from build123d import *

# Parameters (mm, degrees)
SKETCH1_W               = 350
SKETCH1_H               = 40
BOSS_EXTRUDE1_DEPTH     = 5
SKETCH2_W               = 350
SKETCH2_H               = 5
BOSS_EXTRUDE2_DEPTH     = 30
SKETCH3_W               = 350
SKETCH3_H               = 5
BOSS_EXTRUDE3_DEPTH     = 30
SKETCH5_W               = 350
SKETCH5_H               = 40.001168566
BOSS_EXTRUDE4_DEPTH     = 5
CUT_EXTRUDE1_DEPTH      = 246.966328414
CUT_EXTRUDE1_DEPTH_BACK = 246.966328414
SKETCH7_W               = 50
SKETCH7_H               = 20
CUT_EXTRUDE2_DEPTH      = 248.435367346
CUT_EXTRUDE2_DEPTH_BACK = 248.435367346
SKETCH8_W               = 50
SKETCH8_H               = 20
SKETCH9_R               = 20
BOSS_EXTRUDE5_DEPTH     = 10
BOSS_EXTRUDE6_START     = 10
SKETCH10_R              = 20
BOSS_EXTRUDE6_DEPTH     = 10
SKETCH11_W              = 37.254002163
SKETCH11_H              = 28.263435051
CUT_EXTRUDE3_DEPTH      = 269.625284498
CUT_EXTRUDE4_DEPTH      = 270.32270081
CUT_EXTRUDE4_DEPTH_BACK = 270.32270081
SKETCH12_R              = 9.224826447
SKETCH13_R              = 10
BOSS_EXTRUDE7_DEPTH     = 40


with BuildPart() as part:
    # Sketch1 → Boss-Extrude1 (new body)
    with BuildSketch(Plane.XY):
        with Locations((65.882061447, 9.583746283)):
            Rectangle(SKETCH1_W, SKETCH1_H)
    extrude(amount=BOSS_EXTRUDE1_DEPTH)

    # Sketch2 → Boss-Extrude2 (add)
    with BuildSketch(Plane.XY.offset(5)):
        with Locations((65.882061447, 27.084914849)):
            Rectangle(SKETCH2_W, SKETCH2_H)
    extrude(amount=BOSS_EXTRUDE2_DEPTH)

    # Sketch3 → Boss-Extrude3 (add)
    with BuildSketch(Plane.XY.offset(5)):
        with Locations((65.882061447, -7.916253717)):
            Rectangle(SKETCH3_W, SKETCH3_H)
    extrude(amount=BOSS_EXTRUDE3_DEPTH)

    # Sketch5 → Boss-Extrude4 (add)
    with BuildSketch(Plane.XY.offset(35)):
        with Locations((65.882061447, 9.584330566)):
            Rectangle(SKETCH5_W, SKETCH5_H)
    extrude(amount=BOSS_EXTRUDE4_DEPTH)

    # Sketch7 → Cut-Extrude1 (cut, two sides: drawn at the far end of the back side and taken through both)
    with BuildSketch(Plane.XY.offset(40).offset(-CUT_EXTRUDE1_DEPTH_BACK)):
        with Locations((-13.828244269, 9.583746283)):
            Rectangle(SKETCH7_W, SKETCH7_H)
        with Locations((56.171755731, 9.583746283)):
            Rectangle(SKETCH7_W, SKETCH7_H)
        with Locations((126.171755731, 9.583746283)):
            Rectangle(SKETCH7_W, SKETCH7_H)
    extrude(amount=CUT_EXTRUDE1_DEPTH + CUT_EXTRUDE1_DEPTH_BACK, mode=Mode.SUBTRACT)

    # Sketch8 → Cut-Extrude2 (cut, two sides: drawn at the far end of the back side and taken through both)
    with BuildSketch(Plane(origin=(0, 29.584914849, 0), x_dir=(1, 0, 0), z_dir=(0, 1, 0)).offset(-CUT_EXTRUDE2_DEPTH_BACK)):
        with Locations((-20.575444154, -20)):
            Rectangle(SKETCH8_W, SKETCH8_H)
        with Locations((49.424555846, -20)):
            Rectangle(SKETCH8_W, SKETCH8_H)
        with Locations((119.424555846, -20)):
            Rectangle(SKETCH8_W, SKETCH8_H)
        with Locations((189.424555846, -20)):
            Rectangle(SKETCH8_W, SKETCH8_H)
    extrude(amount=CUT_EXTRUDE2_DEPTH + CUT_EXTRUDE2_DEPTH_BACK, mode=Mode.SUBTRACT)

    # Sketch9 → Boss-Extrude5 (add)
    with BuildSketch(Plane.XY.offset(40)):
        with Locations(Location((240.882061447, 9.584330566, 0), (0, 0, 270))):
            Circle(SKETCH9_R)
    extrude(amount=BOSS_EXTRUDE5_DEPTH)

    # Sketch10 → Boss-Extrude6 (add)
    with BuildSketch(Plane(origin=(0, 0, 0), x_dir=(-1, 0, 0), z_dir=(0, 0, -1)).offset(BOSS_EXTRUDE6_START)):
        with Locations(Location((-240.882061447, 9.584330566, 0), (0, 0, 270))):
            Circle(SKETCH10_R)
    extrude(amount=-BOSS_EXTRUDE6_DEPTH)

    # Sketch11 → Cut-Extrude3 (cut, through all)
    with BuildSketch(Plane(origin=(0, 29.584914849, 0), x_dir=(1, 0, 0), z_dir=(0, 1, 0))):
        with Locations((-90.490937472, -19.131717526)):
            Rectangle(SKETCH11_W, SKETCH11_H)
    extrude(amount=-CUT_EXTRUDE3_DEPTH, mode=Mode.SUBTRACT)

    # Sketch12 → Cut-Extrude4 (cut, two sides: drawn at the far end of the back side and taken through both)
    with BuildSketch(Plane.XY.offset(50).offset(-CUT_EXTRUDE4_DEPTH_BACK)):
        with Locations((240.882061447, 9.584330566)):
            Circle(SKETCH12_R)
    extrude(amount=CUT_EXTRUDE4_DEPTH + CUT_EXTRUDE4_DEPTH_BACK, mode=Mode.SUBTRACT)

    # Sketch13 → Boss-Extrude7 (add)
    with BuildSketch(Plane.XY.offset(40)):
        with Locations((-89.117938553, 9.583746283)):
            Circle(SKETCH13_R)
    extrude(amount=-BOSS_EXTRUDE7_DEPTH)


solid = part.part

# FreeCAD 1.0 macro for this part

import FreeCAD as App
import Part
import Sketcher

V = App.Vector

doc = App.newDocument("Part")
params = doc.addObject("Spreadsheet::Sheet", "Params")
for row, (alias, value) in enumerate([
    ("sketch1_width", "350 mm"),
    ("sketch1_height", "40 mm"),
    ("pad1_length", "5 mm"),
    ("sketch2_width", "350 mm"),
    ("sketch2_height", "5 mm"),
    ("pad2_length", "30 mm"),
    ("sketch3_width", "350 mm"),
    ("sketch3_height", "5 mm"),
    ("pad3_length", "30 mm"),
    ("sketch4_width", "350 mm"),
    ("pad4_length", "5 mm"),
    ("sketch5_width", "50 mm"),
    ("sketch5_height", "20 mm"),
    ("sketch6_width", "50 mm"),
    ("sketch6_height", "20 mm"),
    ("sketch7_diameter", "40 mm"),
    ("pad5_length", "10 mm"),
    ("sketch8_diameter", "40 mm"),
    ("pad6_length", "10 mm"),
    ("sketch11_diameter", "20 mm"),
    ("pad7_length", "40 mm"),
], start=1):
    params.set(f"A{row}", alias)
    params.set(f"B{row}", "=" + value)
    params.setAlias(f"B{row}", alias)

body = doc.addObject("PartDesign::Body", "Body")

sketch1 = body.newObject("Sketcher::SketchObject", "Sketch")
sketch1.AttachmentSupport = (doc.getObject("XY_Plane"), [""])
sketch1.MapMode = "FlatFace"
sketch1.addGeometry([
    Part.LineSegment(V(-109, 30, 0), V(-109, -10, 0)),
    Part.LineSegment(V(-109, -10, 0), V(241, -10, 0)),
    Part.LineSegment(V(241, -10, 0), V(241, 30, 0)),
    Part.LineSegment(V(241, 30, 0), V(-109, 30, 0)),
], False)
sketch1.addConstraint([
    Sketcher.Constraint("Coincident", 0, 2, 1, 1),
    Sketcher.Constraint("Coincident", 1, 2, 2, 1),
    Sketcher.Constraint("Coincident", 2, 2, 3, 1),
    Sketcher.Constraint("Coincident", 3, 2, 0, 1),
    Sketcher.Constraint("Vertical", 0),
    Sketcher.Constraint("Horizontal", 1),
    Sketcher.Constraint("Vertical", 2),
    Sketcher.Constraint("Horizontal", 3),
    Sketcher.Constraint("DistanceX", 1, 1, 1, 2, 350.0),
    Sketcher.Constraint("DistanceY", 0, 2, 0, 1, 40.0),
    Sketcher.Constraint("DistanceX", 0, 2, -1, 1, 109.117939),
    Sketcher.Constraint("DistanceY", 0, 2, -1, 1, 10.416254),
])
sketch1.setExpression("Constraints[8]", "Params.sketch1_width")
sketch1.setExpression("Constraints[9]", "Params.sketch1_height")
pad1 = body.newObject("PartDesign::Pad", "Pad")
pad1.Profile = sketch1
pad1.setExpression("Length", "Params.pad1_length")

sketch2 = body.newObject("Sketcher::SketchObject", "Sketch001")
sketch2.AttachmentSupport = (doc.getObject("XY_Plane"), [""])
sketch2.MapMode = "FlatFace"
sketch2.AttachmentOffset = App.Placement(V(0, 0, 5), App.Rotation())
sketch2.addGeometry([
    Part.LineSegment(V(-109, 30, 0), V(-109, 25, 0)),
    Part.LineSegment(V(-109, 25, 0), V(241, 25, 0)),
    Part.LineSegment(V(241, 25, 0), V(241, 30, 0)),
    Part.LineSegment(V(241, 30, 0), V(-109, 30, 0)),
], False)
sketch2.addConstraint([
    Sketcher.Constraint("Coincident", 0, 2, 1, 1),
    Sketcher.Constraint("Coincident", 1, 2, 2, 1),
    Sketcher.Constraint("Coincident", 2, 2, 3, 1),
    Sketcher.Constraint("Coincident", 3, 2, 0, 1),
    Sketcher.Constraint("Vertical", 0),
    Sketcher.Constraint("Horizontal", 1),
    Sketcher.Constraint("Vertical", 2),
    Sketcher.Constraint("Horizontal", 3),
    Sketcher.Constraint("DistanceX", 1, 1, 1, 2, 350.0),
    Sketcher.Constraint("DistanceY", 0, 2, 0, 1, 5.0),
    Sketcher.Constraint("DistanceX", 0, 2, -1, 1, 109.117939),
    Sketcher.Constraint("DistanceY", -1, 1, 0, 2, 24.584915),
])
sketch2.setExpression("Constraints[8]", "Params.sketch2_width")
sketch2.setExpression("Constraints[9]", "Params.sketch2_height")
pad2 = body.newObject("PartDesign::Pad", "Pad001")
pad2.Profile = sketch2
pad2.setExpression("Length", "Params.pad2_length")

sketch3 = body.newObject("Sketcher::SketchObject", "Sketch002")
sketch3.AttachmentSupport = (doc.getObject("XY_Plane"), [""])
sketch3.MapMode = "FlatFace"
sketch3.AttachmentOffset = App.Placement(V(0, 0, 5), App.Rotation())
sketch3.addGeometry([
    Part.LineSegment(V(-109, -5, 0), V(-109, -10, 0)),
    Part.LineSegment(V(-109, -10, 0), V(241, -10, 0)),
    Part.LineSegment(V(241, -10, 0), V(241, -5, 0)),
    Part.LineSegment(V(241, -5, 0), V(-109, -5, 0)),
], False)
sketch3.addConstraint([
    Sketcher.Constraint("Coincident", 0, 2, 1, 1),
    Sketcher.Constraint("Coincident", 1, 2, 2, 1),
    Sketcher.Constraint("Coincident", 2, 2, 3, 1),
    Sketcher.Constraint("Coincident", 3, 2, 0, 1),
    Sketcher.Constraint("Vertical", 0),
    Sketcher.Constraint("Horizontal", 1),
    Sketcher.Constraint("Vertical", 2),
    Sketcher.Constraint("Horizontal", 3),
    Sketcher.Constraint("DistanceX", 1, 1, 1, 2, 350.0),
    Sketcher.Constraint("DistanceY", 0, 2, 0, 1, 5.0),
    Sketcher.Constraint("DistanceX", 0, 2, -1, 1, 109.117939),
    Sketcher.Constraint("DistanceY", 0, 2, -1, 1, 10.416254),
])
sketch3.setExpression("Constraints[8]", "Params.sketch3_width")
sketch3.setExpression("Constraints[9]", "Params.sketch3_height")
pad3 = body.newObject("PartDesign::Pad", "Pad002")
pad3.Profile = sketch3
pad3.setExpression("Length", "Params.pad3_length")

sketch4 = body.newObject("Sketcher::SketchObject", "Sketch003")
sketch4.AttachmentSupport = (doc.getObject("XY_Plane"), [""])
sketch4.MapMode = "FlatFace"
sketch4.AttachmentOffset = App.Placement(V(0, 0, 35), App.Rotation())
sketch4.addGeometry([
    Part.LineSegment(V(-109, 30, 0), V(-109, -10, 0)),
    Part.LineSegment(V(-109, -10, 0), V(241, -10, 0)),
    Part.LineSegment(V(241, -10, 0), V(241, 30, 0)),
    Part.LineSegment(V(241, 30, 0), V(-109, 30, 0)),
], False)
sketch4.addConstraint([
    Sketcher.Constraint("Coincident", 0, 2, 1, 1),
    Sketcher.Constraint("Coincident", 1, 2, 2, 1),
    Sketcher.Constraint("Coincident", 2, 2, 3, 1),
    Sketcher.Constraint("Coincident", 3, 2, 0, 1),
    Sketcher.Constraint("Vertical", 0),
    Sketcher.Constraint("Horizontal", 1),
    Sketcher.Constraint("Vertical", 2),
    Sketcher.Constraint("Horizontal", 3),
    Sketcher.Constraint("DistanceX", 1, 1, 1, 2, 350.0),
    Sketcher.Constraint("DistanceY", 0, 2, 0, 1, 40.001169),
    Sketcher.Constraint("DistanceX", 0, 2, -1, 1, 109.117939),
    Sketcher.Constraint("DistanceY", 0, 2, -1, 1, 10.416254),
])
sketch4.setExpression("Constraints[8]", "Params.sketch4_width")
pad4 = body.newObject("PartDesign::Pad", "Pad003")
pad4.Profile = sketch4
pad4.setExpression("Length", "Params.pad4_length")

sketch5 = body.newObject("Sketcher::SketchObject", "Sketch004")
sketch5.AttachmentSupport = (doc.getObject("XY_Plane"), [""])
sketch5.MapMode = "FlatFace"
sketch5.AttachmentOffset = App.Placement(V(0, 0, 40), App.Rotation())
sketch5.addGeometry([
    Part.LineSegment(V(-39, 20, 0), V(-39, 0, 0)),
    Part.LineSegment(V(-39, 0, 0), V(11, 0, 0)),
    Part.LineSegment(V(11, 0, 0), V(11, 20, 0)),
    Part.LineSegment(V(11, 20, 0), V(-39, 20, 0)),
    Part.LineSegment(V(31, 20, 0), V(31, 0, 0)),
    Part.LineSegment(V(31, 0, 0), V(81, 0, 0)),
    Part.LineSegment(V(81, 0, 0), V(81, 20, 0)),
    Part.LineSegment(V(81, 20, 0), V(31, 20, 0)),
    Part.LineSegment(V(101, 20, 0), V(101, 0, 0)),
    Part.LineSegment(V(101, 0, 0), V(151, 0, 0)),
    Part.LineSegment(V(151, 0, 0), V(151, 20, 0)),
    Part.LineSegment(V(151, 20, 0), V(101, 20, 0)),
], False)
sketch5.addConstraint([
    Sketcher.Constraint("Coincident", 0, 2, 1, 1),
    Sketcher.Constraint("Coincident", 1, 2, 2, 1),
    Sketcher.Constraint("Coincident", 2, 2, 3, 1),
    Sketcher.Constraint("Coincident", 3, 2, 0, 1),
    Sketcher.Constraint("Coincident", 4, 2, 5, 1),
    Sketcher.Constraint("Coincident", 5, 2, 6, 1),
    Sketcher.Constraint("Coincident", 6, 2, 7, 1),
    Sketcher.Constraint("Coincident", 7, 2, 4, 1),
    Sketcher.Constraint("Coincident", 8, 2, 9, 1),
    Sketcher.Constraint("Coincident", 9, 2, 10, 1),
    Sketcher.Constraint("Coincident", 10, 2, 11, 1),
    Sketcher.Constraint("Coincident", 11, 2, 8, 1),
    Sketcher.Constraint("Vertical", 0),
    Sketcher.Constraint("Horizontal", 1),
    Sketcher.Constraint("Vertical", 2),
    Sketcher.Constraint("Horizontal", 3),
    Sketcher.Constraint("Vertical", 4),
    Sketcher.Constraint("Horizontal", 5),
    Sketcher.Constraint("Vertical", 6),
    Sketcher.Constraint("Horizontal", 7),
    Sketcher.Constraint("Vertical", 8),
    Sketcher.Constraint("Horizontal", 9),
    Sketcher.Constraint("Vertical", 10),
    Sketcher.Constraint("Horizontal", 11),
    Sketcher.Constraint("Horizontal", 1, 2, 4, 2),
    Sketcher.Constraint("Horizontal", 3, 2, 6, 2),
    Sketcher.Constraint("Horizontal", 5, 2, 8, 2),
    Sketcher.Constraint("Horizontal", 7, 2, 10, 2),
    Sketcher.Constraint("Equal", 3, 5),
    Sketcher.Constraint("Equal", 7, 9),
    Sketcher.Constraint("DistanceX", 1, 1, 1, 2, 50.0),
    Sketcher.Constraint("DistanceY", 0, 2, 0, 1, 20.0),
    Sketcher.Constraint("DistanceX", 1, 2, 4, 2, 20.0),
    Sketcher.Constraint("DistanceX", 5, 2, 8, 2, 20.0),
    Sketcher.Constraint("DistanceX", 0, 2, -1, 1, 38.828244),
    Sketcher.Constraint("DistanceY", 0, 2, -1, 1, 0.416254),
])
sketch5.setExpression("Constraints[30]", "Params.sketch5_width")
sketch5.setExpression("Constraints[31]", "Params.sketch5_height")
pocket1 = body.newObject("PartDesign::Pocket", "Pocket")
pocket1.Profile = sketch5
pocket1.Type = "ThroughAll"
pocket1.Midplane = True

sketch6 = body.newObject("Sketcher::SketchObject", "Sketch005")
sketch6.AttachmentSupport = (doc.getObject("XZ_Plane"), [""])
sketch6.MapMode = "FlatFace"
sketch6.AttachmentOffset = App.Placement(V(0, 0, -29.584915), App.Rotation())
sketch6.addGeometry([
    Part.LineSegment(V(-46, 10, 0), V(-46, 30, 0)),
    Part.LineSegment(V(-46, 30, 0), V(4, 30, 0)),
    Part.LineSegment(V(4, 30, 0), V(4, 10, 0)),
    Part.LineSegment(V(4, 10, 0), V(-46, 10, 0)),
    Part.LineSegment(V(24, 10, 0), V(24, 30, 0)),
    Part.LineSegment(V(24, 30, 0), V(74, 30, 0)),
    Part.LineSegment(V(74, 30, 0), V(74, 10, 0)),
    Part.LineSegment(V(74, 10, 0), V(24, 10, 0)),
    Part.LineSegment(V(94, 10, 0), V(94, 30, 0)),
    Part.LineSegment(V(94, 30, 0), V(144, 30, 0)),
    Part.LineSegment(V(144, 30, 0), V(144, 10, 0)),
    Part.LineSegment(V(144, 10, 0), V(94, 10, 0)),
    Part.LineSegment(V(164, 10, 0), V(164, 30, 0)),
    Part.LineSegment(V(164, 30, 0), V(214, 30, 0)),
    Part.LineSegment(V(214, 30, 0), V(214, 10, 0)),
    Part.LineSegment(V(214, 10, 0), V(164, 10, 0)),
], False)
sketch6.addConstraint([
    Sketcher.Constraint("Coincident", 0, 2, 1, 1),
    Sketcher.Constraint("Coincident", 1, 2, 2, 1),
    Sketcher.Constraint("Coincident", 2, 2, 3, 1),
    Sketcher.Constraint("Coincident", 3, 2, 0, 1),
    Sketcher.Constraint("Coincident", 4, 2, 5, 1),
    Sketcher.Constraint("Coincident", 5, 2, 6, 1),
    Sketcher.Constraint("Coincident", 6, 2, 7, 1),
    Sketcher.Constraint("Coincident", 7, 2, 4, 1),
    Sketcher.Constraint("Coincident", 8, 2, 9, 1),
    Sketcher.Constraint("Coincident", 9, 2, 10, 1),
    Sketcher.Constraint("Coincident", 10, 2, 11, 1),
    Sketcher.Constraint("Coincident", 11, 2, 8, 1),
    Sketcher.Constraint("Coincident", 12, 2, 13, 1),
    Sketcher.Constraint("Coincident", 13, 2, 14, 1),
    Sketcher.Constraint("Coincident", 14, 2, 15, 1),
    Sketcher.Constraint("Coincident", 15, 2, 12, 1),
    Sketcher.Constraint("Vertical", 0),
    Sketcher.Constraint("Horizontal", 1),
    Sketcher.Constraint("Vertical", 2),
    Sketcher.Constraint("Horizontal", 3),
    Sketcher.Constraint("Vertical", 4),
    Sketcher.Constraint("Horizontal", 5),
    Sketcher.Constraint("Vertical", 6),
    Sketcher.Constraint("Horizontal", 7),
    Sketcher.Constraint("Vertical", 8),
    Sketcher.Constraint("Horizontal", 9),
    Sketcher.Constraint("Vertical", 10),
    Sketcher.Constraint("Horizontal", 11),
    Sketcher.Constraint("Vertical", 12),
    Sketcher.Constraint("Horizontal", 13),
    Sketcher.Constraint("Vertical", 14),
    Sketcher.Constraint("Horizontal", 15),
    Sketcher.Constraint("Horizontal", 1, 2, 4, 2),
    Sketcher.Constraint("Horizontal", 3, 2, 6, 2),
    Sketcher.Constraint("Horizontal", 5, 2, 8, 2),
    Sketcher.Constraint("Horizontal", 7, 2, 10, 2),
    Sketcher.Constraint("Horizontal", 9, 2, 12, 2),
    Sketcher.Constraint("Horizontal", 11, 2, 14, 2),
    Sketcher.Constraint("Equal", 3, 5),
    Sketcher.Constraint("Equal", 7, 9),
    Sketcher.Constraint("Equal", 11, 13),
    Sketcher.Constraint("DistanceX", 1, 1, 1, 2, 50.0),
    Sketcher.Constraint("DistanceY", 0, 1, 0, 2, 20.0),
    Sketcher.Constraint("DistanceY", -1, 1, 0, 2, 30.0),
    Sketcher.Constraint("DistanceX", 1, 2, 4, 2, 20.0),
    Sketcher.Constraint("DistanceX", 5, 2, 8, 2, 20.0),
    Sketcher.Constraint("DistanceX", 9, 2, 12, 2, 20.0),
    Sketcher.Constraint("DistanceX", 0, 2, -1, 1, 45.575444),
])
sketch6.setExpression("Constraints[41]", "Params.sketch6_width")
sketch6.setExpression("Constraints[42]", "Params.sketch6_height")
pocket2 = body.newObject("PartDesign::Pocket", "Pocket001")
pocket2.Profile = sketch6
pocket2.Type = "ThroughAll"
pocket2.Midplane = True

sketch7 = body.newObject("Sketcher::SketchObject", "Sketch006")
sketch7.AttachmentSupport = (doc.getObject("XY_Plane"), [""])
sketch7.MapMode = "FlatFace"
sketch7.AttachmentOffset = App.Placement(V(0, 0, 40), App.Rotation())
sketch7.addGeometry(Part.Circle(V(241, 10, 0), V(0, 0, 1), 20), False)
sketch7.addConstraint([
    Sketcher.Constraint("Diameter", 0, 40.0),
    Sketcher.Constraint("DistanceX", -1, 1, 0, 3, 240.882061),
    Sketcher.Constraint("DistanceY", -1, 1, 0, 3, 9.584331),
])
sketch7.setExpression("Constraints[0]", "Params.sketch7_diameter")
pad5 = body.newObject("PartDesign::Pad", "Pad004")
pad5.Profile = sketch7
pad5.setExpression("Length", "Params.pad5_length")

sketch8 = body.newObject("Sketcher::SketchObject", "Sketch007")
sketch8.AttachmentSupport = (doc.getObject("XY_Plane"), [""])
sketch8.MapMode = "FlatFace"
sketch8.AttachmentOffset = App.Placement(V(0, 0, -10), App.Rotation())
sketch8.addGeometry(Part.Circle(V(241, 10, 0), V(0, 0, 1), 20), False)
sketch8.addConstraint([
    Sketcher.Constraint("Diameter", 0, 40.0),
    Sketcher.Constraint("DistanceX", -1, 1, 0, 3, 240.882061),
    Sketcher.Constraint("DistanceY", -1, 1, 0, 3, 9.584331),
])
sketch8.setExpression("Constraints[0]", "Params.sketch8_diameter")
pad6 = body.newObject("PartDesign::Pad", "Pad005")
pad6.Profile = sketch8
pad6.setExpression("Length", "Params.pad6_length")

sketch9 = body.newObject("Sketcher::SketchObject", "Sketch008")
sketch9.AttachmentSupport = (doc.getObject("XZ_Plane"), [""])
sketch9.MapMode = "FlatFace"
sketch9.AttachmentOffset = App.Placement(V(0, 0, -29.584915), App.Rotation())
sketch9.addGeometry([
    Part.LineSegment(V(-109, 5, 0), V(-109, 33, 0)),
    Part.LineSegment(V(-109, 33, 0), V(-72, 33, 0)),
    Part.LineSegment(V(-72, 33, 0), V(-72, 5, 0)),
    Part.LineSegment(V(-72, 5, 0), V(-109, 5, 0)),
], False)
sketch9.addConstraint([
    Sketcher.Constraint("Coincident", 0, 2, 1, 1),
    Sketcher.Constraint("Coincident", 1, 2, 2, 1),
    Sketcher.Constraint("Coincident", 2, 2, 3, 1),
    Sketcher.Constraint("Coincident", 3, 2, 0, 1),
    Sketcher.Constraint("Vertical", 0),
    Sketcher.Constraint("Horizontal", 1),
    Sketcher.Constraint("Vertical", 2),
    Sketcher.Constraint("Horizontal", 3),
    Sketcher.Constraint("DistanceY", -1, 1, 2, 2, 5.0),
    Sketcher.Constraint("DistanceX", 1, 1, 1, 2, 37.254002),
    Sketcher.Constraint("DistanceY", 0, 1, 0, 2, 28.263435),
    Sketcher.Constraint("DistanceX", 0, 2, -1, 1, 109.117939),
])
pocket3 = body.newObject("PartDesign::Pocket", "Pocket002")
pocket3.Profile = sketch9
pocket3.Type = "ThroughAll"
pocket3.Reversed = True

sketch10 = body.newObject("Sketcher::SketchObject", "Sketch009")
sketch10.AttachmentSupport = (doc.getObject("XY_Plane"), [""])
sketch10.MapMode = "FlatFace"
sketch10.AttachmentOffset = App.Placement(V(0, 0, 50), App.Rotation())
sketch10.addGeometry(Part.Circle(V(241, 10, 0), V(0, 0, 1), 9), False)
sketch10.addConstraint([
    Sketcher.Constraint("Diameter", 0, 18.449653),
    Sketcher.Constraint("DistanceX", -1, 1, 0, 3, 240.882061),
    Sketcher.Constraint("DistanceY", -1, 1, 0, 3, 9.584331),
])
pocket4 = body.newObject("PartDesign::Pocket", "Pocket003")
pocket4.Profile = sketch10
pocket4.Type = "ThroughAll"
pocket4.Midplane = True

sketch11 = body.newObject("Sketcher::SketchObject", "Sketch010")
sketch11.AttachmentSupport = (doc.getObject("XY_Plane"), [""])
sketch11.MapMode = "FlatFace"
sketch11.AttachmentOffset = App.Placement(V(0, 0, 40), App.Rotation())
sketch11.addGeometry(Part.Circle(V(-89, 10, 0), V(0, 0, 1), 10), False)
sketch11.addConstraint([
    Sketcher.Constraint("Diameter", 0, 20.0),
    Sketcher.Constraint("DistanceX", 0, 3, -1, 1, 89.117939),
    Sketcher.Constraint("DistanceY", -1, 1, 0, 3, 9.583746),
])
sketch11.setExpression("Constraints[0]", "Params.sketch11_diameter")
pad7 = body.newObject("PartDesign::Pad", "Pad006")
pad7.Profile = sketch11
pad7.setExpression("Length", "Params.pad7_length")
pad7.Reversed = True

doc.recompute()
